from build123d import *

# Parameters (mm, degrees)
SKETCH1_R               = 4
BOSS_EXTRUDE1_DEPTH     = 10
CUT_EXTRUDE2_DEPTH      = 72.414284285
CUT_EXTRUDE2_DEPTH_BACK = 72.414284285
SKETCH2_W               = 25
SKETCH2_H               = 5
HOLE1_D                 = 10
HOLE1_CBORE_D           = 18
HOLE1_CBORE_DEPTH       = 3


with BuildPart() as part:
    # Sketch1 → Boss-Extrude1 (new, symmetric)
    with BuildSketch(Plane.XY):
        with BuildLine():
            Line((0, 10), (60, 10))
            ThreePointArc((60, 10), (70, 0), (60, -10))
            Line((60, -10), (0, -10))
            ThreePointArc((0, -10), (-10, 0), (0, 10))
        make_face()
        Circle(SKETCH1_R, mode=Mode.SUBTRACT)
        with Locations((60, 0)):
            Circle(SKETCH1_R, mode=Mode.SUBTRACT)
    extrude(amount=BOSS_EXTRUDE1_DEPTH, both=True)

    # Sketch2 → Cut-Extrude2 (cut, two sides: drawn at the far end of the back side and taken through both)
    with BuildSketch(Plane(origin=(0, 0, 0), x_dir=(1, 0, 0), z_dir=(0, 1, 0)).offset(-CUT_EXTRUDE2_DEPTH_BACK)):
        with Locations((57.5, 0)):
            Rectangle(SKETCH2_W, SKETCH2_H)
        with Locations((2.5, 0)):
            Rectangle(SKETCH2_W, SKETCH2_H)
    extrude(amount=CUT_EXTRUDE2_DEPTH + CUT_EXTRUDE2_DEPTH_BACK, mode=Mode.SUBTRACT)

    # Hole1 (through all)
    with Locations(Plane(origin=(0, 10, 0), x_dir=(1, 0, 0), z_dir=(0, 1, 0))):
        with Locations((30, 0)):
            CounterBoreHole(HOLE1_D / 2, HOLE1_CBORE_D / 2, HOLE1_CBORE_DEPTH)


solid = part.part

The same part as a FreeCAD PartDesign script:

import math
import FreeCAD as App
import Part
import Sketcher

V = App.Vector
Q = App.Units.Quantity

doc = App.newDocument("Part")
params = doc.addObject("Spreadsheet::Sheet", "Params")
for row, (alias, value) in enumerate([
    ("sketch1_diameter", "8 mm"),
    ("sketch1_radius", "10 mm"),
    ("sketch1_width", "60 mm"),
    ("pad1_length", "20 mm"),
    ("sketch2_width", "25 mm"),
    ("sketch2_height", "5 mm"),
    ("sketch3_diameter", "10 mm"),
    ("hole_diameter", "10 mm"),
    ("hole_cbore_diameter", "18 mm"),
    ("hole_cbore_depth", "3 mm"),
], start=1):
    params.set(f"A{row}", alias)
    params.set(f"B{row}", "=" + value)
    params.setAlias(f"B{row}", alias)

body = doc.addObject("PartDesign::Body", "Body")

sketch1 = body.newObject("Sketcher::SketchObject", "Sketch")
sketch1.AttachmentSupport = (doc.getObject("XY_Plane"), [""])
sketch1.MapMode = "FlatFace"
sketch1.addGeometry(Part.LineSegment(V(60, 10, 0), V(0, 10, 0)), False)
sketch1.addGeometry(Part.ArcOfCircle(Part.Circle(V(0, 0, 0), V(0, 0, 1), 10), math.radians(90), math.radians(270)), False)
sketch1.addGeometry(Part.LineSegment(V(0, -10, 0), V(60, -10, 0)), False)
sketch1.addGeometry(Part.ArcOfCircle(Part.Circle(V(60, 0, 0), V(0, 0, 1), 10), math.radians(-90), math.radians(90)), False)
sketch1.addGeometry(Part.Circle(V(60, 0, 0), V(0, 0, 1), 4), False)
sketch1.addGeometry(Part.Circle(V(0, 0, 0), V(0, 0, 1), 4), False)
sketch1.addConstraint(Sketcher.Constraint("Tangent", 0, 2, 1, 1))
sketch1.addConstraint(Sketcher.Constraint("Tangent", 1, 2, 2, 1))
sketch1.addConstraint(Sketcher.Constraint("Tangent", 2, 2, 3, 1))
sketch1.addConstraint(Sketcher.Constraint("Tangent", 3, 2, 0, 1))
sketch1.addConstraint(Sketcher.Constraint("Horizontal", 0))
sketch1.addConstraint(Sketcher.Constraint("Horizontal", 2))
sketch1.addConstraint(Sketcher.Constraint("Coincident", 1, 3, -1, 1))
sketch1.addConstraint(Sketcher.Constraint("Coincident", 5, 3, -1, 1))
sketch1.addConstraint(Sketcher.Constraint("Coincident", 4, 3, 3, 3))
sketch1.addConstraint(Sketcher.Constraint("Equal", 4, 5))
sketch1.addConstraint(Sketcher.Constraint("Diameter", 4, Q("8 mm")))
sketch1.addConstraint(Sketcher.Constraint("Radius", 1, Q("10 mm")))
sketch1.addConstraint(Sketcher.Constraint("DistanceX", 0, 2, 0, 1, Q("60 mm")))
sketch1.setExpression("Constraints[10]", "Params.sketch1_diameter")
sketch1.setExpression("Constraints[11]", "Params.sketch1_radius")
sketch1.setExpression("Constraints[12]", "Params.sketch1_width")
pad1 = body.newObject("PartDesign::Pad", "Pad")
pad1.Profile = sketch1
pad1.setExpression("Length", "Params.pad1_length")
pad1.Midplane = True

sketch2 = body.newObject("Sketcher::SketchObject", "Sketch001")
sketch2.AttachmentSupport = (doc.getObject("XZ_Plane"), [""])
sketch2.MapMode = "FlatFace"
sketch2.addGeometry(Part.LineSegment(V(45, -2.5, 0), V(45, 2.5, 0)), False)
sketch2.addGeometry(Part.LineSegment(V(45, 2.5, 0), V(70, 2.5, 0)), False)
sketch2.addGeometry(Part.LineSegment(V(70, 2.5, 0), V(70, -2.5, 0)), False)
sketch2.addGeometry(Part.LineSegment(V(70, -2.5, 0), V(45, -2.5, 0)), False)
sketch2.addGeometry(Part.LineSegment(V(-10, -2.5, 0), V(-10, 2.5, 0)), False)
sketch2.addGeometry(Part.LineSegment(V(-10, 2.5, 0), V(15, 2.5, 0)), False)
sketch2.addGeometry(Part.LineSegment(V(15, 2.5, 0), V(15, -2.5, 0)), False)
sketch2.addGeometry(Part.LineSegment(V(15, -2.5, 0), V(-10, -2.5, 0)), False)
sketch2.addConstraint(Sketcher.Constraint("Coincident", 0, 2, 1, 1))
sketch2.addConstraint(Sketcher.Constraint("Coincident", 1, 2, 2, 1))
sketch2.addConstraint(Sketcher.Constraint("Coincident", 2, 2, 3, 1))
sketch2.addConstraint(Sketcher.Constraint("Coincident", 3, 2, 0, 1))
sketch2.addConstraint(Sketcher.Constraint("Coincident", 4, 2, 5, 1))
sketch2.addConstraint(Sketcher.Constraint("Coincident", 5, 2, 6, 1))
sketch2.addConstraint(Sketcher.Constraint("Coincident", 6, 2, 7, 1))
sketch2.addConstraint(Sketcher.Constraint("Coincident", 7, 2, 4, 1))
sketch2.addConstraint(Sketcher.Constraint("Vertical", 0))
sketch2.addConstraint(Sketcher.Constraint("Horizontal", 1))
sketch2.addConstraint(Sketcher.Constraint("Vertical", 2))
sketch2.addConstraint(Sketcher.Constraint("Horizontal", 3))
sketch2.addConstraint(Sketcher.Constraint("Vertical", 4))
sketch2.addConstraint(Sketcher.Constraint("Horizontal", 5))
sketch2.addConstraint(Sketcher.Constraint("Vertical", 6))
sketch2.addConstraint(Sketcher.Constraint("Horizontal", 7))
sketch2.addConstraint(Sketcher.Constraint("Horizontal", 1, 2, 4, 2))
sketch2.addConstraint(Sketcher.Constraint("Horizontal", 3, 2, 6, 2))
sketch2.addConstraint(Sketcher.Constraint("Equal", 3, 5))
sketch2.addConstraint(Sketcher.Constraint("DistanceX", 1, 1, 1, 2, Q("25 mm")))
sketch2.addConstraint(Sketcher.Constraint("DistanceY", 0, 1, 0, 2, Q("5 mm")))
sketch2.addConstraint(Sketcher.Constraint("DistanceX", -1, 1, 0, 2, Q("45 mm")))
sketch2.addConstraint(Sketcher.Constraint("DistanceX", 4, 2, -1, 1, Q("10 mm")))
sketch2.addConstraint(Sketcher.Constraint("DistanceY", -1, 1, 0, 2, Q("2.5 mm")))
sketch2.setExpression("Constraints[19]", "Params.sketch2_width")
sketch2.setExpression("Constraints[20]", "Params.sketch2_height")
pocket1 = body.newObject("PartDesign::Pocket", "Pocket")
pocket1.Profile = sketch2
pocket1.Type = "ThroughAll"
pocket1.Midplane = True

sketch3 = body.newObject("Sketcher::SketchObject", "Sketch002")
sketch3.AttachmentSupport = (doc.getObject("XZ_Plane"), [""])
sketch3.MapMode = "FlatFace"
sketch3.AttachmentOffset = App.Placement(V(0, 0, -10), App.Rotation())
sketch3.addGeometry(Part.Circle(V(30, 0, 0), V(0, 0, 1), 5), False)
sketch3.addConstraint(Sketcher.Constraint("PointOnObject", 0, 3, -1))
sketch3.addConstraint(Sketcher.Constraint("Diameter", 0, Q("10 mm")))
sketch3.addConstraint(Sketcher.Constraint("DistanceX", -1, 1, 0, 3, Q("30 mm")))
sketch3.setExpression("Constraints[1]", "Params.sketch3_diameter")
doc.recompute()
hole = body.newObject("PartDesign::Hole", "Hole")
hole.Profile = sketch3
hole.ThreadType = "None"
hole.setExpression("Diameter", "Params.hole_diameter")
hole.DepthType = "ThroughAll"
hole.HoleCutType = "Counterbore"
hole.setExpression("HoleCutDiameter", "Params.hole_cbore_diameter")
hole.setExpression("HoleCutDepth", "Params.hole_cbore_depth")
hole.Reversed = True

doc.recompute()
